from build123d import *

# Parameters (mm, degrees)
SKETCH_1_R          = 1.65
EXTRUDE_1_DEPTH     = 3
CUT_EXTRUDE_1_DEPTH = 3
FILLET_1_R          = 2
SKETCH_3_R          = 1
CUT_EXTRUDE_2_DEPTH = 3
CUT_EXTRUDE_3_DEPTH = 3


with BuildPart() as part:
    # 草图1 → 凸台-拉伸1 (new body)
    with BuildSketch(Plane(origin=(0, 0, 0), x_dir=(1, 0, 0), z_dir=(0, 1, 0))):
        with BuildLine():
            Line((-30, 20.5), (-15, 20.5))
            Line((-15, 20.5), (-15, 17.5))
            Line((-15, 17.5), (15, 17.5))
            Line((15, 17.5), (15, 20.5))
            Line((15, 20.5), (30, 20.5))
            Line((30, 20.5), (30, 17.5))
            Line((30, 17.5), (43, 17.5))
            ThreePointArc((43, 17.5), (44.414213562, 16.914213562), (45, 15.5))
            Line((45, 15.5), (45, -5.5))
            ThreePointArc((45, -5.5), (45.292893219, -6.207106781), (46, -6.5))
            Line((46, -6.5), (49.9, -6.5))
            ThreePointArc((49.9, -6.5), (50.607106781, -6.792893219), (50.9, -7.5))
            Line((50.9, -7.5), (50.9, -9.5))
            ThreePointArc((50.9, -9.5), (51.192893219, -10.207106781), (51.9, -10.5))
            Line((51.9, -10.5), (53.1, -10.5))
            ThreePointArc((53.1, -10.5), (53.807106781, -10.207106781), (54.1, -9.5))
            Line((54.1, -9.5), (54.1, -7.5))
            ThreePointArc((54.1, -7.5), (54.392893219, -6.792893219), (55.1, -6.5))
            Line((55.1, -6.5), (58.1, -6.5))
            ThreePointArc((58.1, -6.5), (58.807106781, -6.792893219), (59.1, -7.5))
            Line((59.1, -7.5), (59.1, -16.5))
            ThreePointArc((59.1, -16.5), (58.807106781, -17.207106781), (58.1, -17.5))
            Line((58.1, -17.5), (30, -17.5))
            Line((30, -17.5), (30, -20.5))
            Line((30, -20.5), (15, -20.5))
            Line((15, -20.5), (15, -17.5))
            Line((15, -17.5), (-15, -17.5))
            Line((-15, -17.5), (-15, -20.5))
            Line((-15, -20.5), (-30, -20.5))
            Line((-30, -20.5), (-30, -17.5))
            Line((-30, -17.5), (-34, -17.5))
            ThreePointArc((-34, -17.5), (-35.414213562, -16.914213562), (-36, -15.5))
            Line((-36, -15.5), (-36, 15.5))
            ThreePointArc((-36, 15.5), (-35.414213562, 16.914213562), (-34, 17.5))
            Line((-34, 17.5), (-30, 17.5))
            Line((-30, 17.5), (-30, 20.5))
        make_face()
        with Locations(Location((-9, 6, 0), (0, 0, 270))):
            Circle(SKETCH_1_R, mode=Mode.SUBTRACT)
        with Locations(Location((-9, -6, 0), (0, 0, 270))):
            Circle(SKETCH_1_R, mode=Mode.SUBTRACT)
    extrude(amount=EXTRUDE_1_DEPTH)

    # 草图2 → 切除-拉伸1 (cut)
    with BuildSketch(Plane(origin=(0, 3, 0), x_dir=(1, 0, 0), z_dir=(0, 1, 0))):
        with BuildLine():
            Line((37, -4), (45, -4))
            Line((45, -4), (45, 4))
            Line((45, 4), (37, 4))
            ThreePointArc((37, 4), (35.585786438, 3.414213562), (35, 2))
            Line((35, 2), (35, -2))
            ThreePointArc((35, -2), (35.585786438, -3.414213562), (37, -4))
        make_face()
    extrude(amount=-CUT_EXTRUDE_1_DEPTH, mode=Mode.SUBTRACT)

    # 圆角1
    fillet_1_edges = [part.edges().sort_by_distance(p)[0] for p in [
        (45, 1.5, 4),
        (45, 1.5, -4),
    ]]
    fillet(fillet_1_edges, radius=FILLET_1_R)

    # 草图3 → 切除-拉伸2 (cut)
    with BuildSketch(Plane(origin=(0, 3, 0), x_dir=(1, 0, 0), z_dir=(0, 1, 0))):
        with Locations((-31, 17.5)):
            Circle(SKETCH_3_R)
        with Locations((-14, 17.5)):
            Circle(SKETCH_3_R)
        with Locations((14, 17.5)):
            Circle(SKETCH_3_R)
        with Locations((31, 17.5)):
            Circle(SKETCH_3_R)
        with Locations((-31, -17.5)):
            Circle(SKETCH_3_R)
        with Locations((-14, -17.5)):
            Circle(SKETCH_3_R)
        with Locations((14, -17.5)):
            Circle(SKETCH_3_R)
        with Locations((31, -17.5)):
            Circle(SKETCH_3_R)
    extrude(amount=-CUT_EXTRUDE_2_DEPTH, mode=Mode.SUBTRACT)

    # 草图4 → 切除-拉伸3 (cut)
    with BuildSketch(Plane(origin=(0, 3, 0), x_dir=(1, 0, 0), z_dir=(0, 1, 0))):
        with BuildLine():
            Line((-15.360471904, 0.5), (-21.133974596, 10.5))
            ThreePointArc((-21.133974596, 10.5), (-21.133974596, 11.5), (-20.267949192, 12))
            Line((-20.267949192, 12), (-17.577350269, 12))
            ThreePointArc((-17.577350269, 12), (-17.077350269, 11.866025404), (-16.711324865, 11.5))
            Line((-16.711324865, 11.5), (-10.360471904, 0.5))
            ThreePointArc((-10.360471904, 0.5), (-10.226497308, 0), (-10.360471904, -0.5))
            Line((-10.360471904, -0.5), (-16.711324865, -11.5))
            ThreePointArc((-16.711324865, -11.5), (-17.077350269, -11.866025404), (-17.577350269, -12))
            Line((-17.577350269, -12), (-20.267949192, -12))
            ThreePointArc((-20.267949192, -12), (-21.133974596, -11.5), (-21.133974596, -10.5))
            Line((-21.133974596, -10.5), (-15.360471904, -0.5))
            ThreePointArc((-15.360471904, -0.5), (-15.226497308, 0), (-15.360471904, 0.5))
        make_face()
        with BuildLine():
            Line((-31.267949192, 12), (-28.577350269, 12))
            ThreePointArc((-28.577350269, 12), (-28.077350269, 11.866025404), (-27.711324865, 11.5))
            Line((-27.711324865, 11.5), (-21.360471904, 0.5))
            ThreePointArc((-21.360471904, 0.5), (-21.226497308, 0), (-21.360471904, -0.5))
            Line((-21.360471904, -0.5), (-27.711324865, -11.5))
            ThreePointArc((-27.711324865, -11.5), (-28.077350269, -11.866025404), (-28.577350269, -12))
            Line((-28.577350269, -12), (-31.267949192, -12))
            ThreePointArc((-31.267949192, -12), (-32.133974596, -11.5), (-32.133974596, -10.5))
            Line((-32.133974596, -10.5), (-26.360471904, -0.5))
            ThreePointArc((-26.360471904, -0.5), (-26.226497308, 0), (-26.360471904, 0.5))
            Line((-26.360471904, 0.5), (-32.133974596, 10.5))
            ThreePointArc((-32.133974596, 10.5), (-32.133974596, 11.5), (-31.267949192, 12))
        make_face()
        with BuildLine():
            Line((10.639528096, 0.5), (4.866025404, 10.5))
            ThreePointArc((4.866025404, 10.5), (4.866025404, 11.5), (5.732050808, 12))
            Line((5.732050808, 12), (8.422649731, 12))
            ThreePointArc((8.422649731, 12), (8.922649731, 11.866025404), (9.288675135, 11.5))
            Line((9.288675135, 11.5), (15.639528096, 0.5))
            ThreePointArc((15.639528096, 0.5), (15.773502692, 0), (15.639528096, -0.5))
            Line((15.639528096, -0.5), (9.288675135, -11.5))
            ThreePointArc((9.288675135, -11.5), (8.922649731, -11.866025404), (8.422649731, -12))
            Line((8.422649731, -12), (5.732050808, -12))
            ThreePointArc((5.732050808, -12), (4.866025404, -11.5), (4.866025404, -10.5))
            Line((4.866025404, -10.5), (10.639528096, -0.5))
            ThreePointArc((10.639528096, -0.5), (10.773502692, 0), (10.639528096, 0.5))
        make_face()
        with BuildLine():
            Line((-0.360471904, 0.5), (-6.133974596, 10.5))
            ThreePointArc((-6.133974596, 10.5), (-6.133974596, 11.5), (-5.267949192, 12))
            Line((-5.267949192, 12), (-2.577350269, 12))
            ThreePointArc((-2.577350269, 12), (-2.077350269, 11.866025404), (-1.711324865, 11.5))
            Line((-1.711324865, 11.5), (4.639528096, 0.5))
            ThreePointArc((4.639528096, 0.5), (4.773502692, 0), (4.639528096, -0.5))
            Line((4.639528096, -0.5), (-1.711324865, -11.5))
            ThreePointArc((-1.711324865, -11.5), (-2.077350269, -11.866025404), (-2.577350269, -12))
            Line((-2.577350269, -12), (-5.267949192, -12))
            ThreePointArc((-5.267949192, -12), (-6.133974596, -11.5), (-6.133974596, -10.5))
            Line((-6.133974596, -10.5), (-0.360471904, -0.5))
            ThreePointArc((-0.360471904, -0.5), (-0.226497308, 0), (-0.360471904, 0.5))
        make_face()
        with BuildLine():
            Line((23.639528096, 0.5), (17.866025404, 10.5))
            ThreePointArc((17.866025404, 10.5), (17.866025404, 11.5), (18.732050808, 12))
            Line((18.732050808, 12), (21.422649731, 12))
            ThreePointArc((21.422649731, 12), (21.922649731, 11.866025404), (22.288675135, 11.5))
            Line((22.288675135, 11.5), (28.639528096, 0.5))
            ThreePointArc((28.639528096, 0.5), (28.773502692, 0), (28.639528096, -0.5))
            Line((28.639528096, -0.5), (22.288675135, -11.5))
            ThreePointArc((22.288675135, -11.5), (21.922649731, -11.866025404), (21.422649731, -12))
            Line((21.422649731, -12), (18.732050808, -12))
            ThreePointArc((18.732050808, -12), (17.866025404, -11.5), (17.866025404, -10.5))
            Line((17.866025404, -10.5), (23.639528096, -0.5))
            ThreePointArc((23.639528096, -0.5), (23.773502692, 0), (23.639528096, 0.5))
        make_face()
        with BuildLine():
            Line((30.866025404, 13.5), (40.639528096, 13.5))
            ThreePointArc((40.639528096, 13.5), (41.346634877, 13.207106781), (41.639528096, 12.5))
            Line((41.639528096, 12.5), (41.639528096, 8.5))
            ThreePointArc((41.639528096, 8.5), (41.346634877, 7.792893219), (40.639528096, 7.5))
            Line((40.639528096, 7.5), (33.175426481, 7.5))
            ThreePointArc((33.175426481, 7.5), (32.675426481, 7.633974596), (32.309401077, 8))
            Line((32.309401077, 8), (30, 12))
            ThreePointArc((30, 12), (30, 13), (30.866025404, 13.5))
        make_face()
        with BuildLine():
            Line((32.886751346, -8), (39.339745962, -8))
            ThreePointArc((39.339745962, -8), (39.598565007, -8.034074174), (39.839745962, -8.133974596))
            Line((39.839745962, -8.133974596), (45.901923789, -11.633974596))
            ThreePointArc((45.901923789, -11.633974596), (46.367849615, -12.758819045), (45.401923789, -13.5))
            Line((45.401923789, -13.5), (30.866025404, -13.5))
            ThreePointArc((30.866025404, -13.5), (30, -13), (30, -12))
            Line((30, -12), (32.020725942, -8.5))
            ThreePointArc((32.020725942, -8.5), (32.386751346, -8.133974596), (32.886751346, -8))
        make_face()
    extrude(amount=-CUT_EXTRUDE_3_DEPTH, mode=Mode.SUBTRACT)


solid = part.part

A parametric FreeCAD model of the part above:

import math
import FreeCAD as App
import Part
import Sketcher
from FreeCAD import Vector
Q = App.Units.Quantity


def edges_at(feature, points):
    """Names of the edges that pass closest to the given points."""
    edges = feature.Shape.Edges
    near = lambda p: min(range(len(edges)), key=lambda i: edges[i].distToShape(Part.Vertex(*p))[0])
    return sorted({f"Edge{near(p) + 1}" for p in points})

doc = App.newDocument("Part")
body = doc.addObject("PartDesign::Body", "Body")

sketch1 = body.newObject("Sketcher::SketchObject", "Sketch")
sketch1.AttachmentSupport = (doc.getObject("XZ_Plane"), [""])
sketch1.MapMode = "FlatFace"
sketch1.addGeometry([
    Part.LineSegment(Vector(-15, -20.5, 0), Vector(-30, -20.5, 0)),
    Part.LineSegment(Vector(-30, -20.5, 0), Vector(-30, -17.5, 0)),
    Part.LineSegment(Vector(-30, -17.5, 0), Vector(-34, -17.5, 0)),
    Part.ArcOfCircle(Part.Circle(Vector(-34, -15.5, 0), Vector(0, 0, 1), 2), math.radians(-180), math.radians(-90)),
    Part.LineSegment(Vector(-36, -15.5, 0), Vector(-36, 15.5, 0)),
    Part.ArcOfCircle(Part.Circle(Vector(-34, 15.5, 0), Vector(0, 0, 1), 2), math.radians(90), math.radians(180)),
    Part.LineSegment(Vector(-34, 17.5, 0), Vector(-30, 17.5, 0)),
    Part.LineSegment(Vector(-30, 17.5, 0), Vector(-30, 20.5, 0)),
    Part.LineSegment(Vector(-30, 20.5, 0), Vector(-15, 20.5, 0)),
    Part.LineSegment(Vector(-15, 20.5, 0), Vector(-15, 17.5, 0)),
    Part.LineSegment(Vector(-15, 17.5, 0), Vector(15, 17.5, 0)),
    Part.LineSegment(Vector(15, 17.5, 0), Vector(15, 20.5, 0)),
    Part.LineSegment(Vector(15, 20.5, 0), Vector(30, 20.5, 0)),
    Part.LineSegment(Vector(30, 20.5, 0), Vector(30, 17.5, 0)),
    Part.LineSegment(Vector(30, 17.5, 0), Vector(58.1, 17.5, 0)),
    Part.ArcOfCircle(Part.Circle(Vector(58.1, 16.5, 0), Vector(0, 0, 1), 1), math.radians(0), math.radians(90)),
    Part.LineSegment(Vector(59.1, 16.5, 0), Vector(59.1, 7.5, 0)),
    Part.ArcOfCircle(Part.Circle(Vector(58.1, 7.5, 0), Vector(0, 0, 1), 1), math.radians(-90), math.radians(0)),
    Part.LineSegment(Vector(58.1, 6.5, 0), Vector(55.1, 6.5, 0)),
    Part.ArcOfCircle(Part.Circle(Vector(55.1, 7.5, 0), Vector(0, 0, 1), 1), math.radians(-180), math.radians(-90)),
    Part.LineSegment(Vector(54.1, 7.5, 0), Vector(54.1, 9.5, 0)),
    Part.ArcOfCircle(Part.Circle(Vector(53.1, 9.5, 0), Vector(0, 0, 1), 1), math.radians(0), math.radians(90)),
    Part.LineSegment(Vector(53.1, 10.5, 0), Vector(51.9, 10.5, 0)),
    Part.ArcOfCircle(Part.Circle(Vector(51.9, 9.5, 0), Vector(0, 0, 1), 1), math.radians(90), math.radians(180)),
    Part.LineSegment(Vector(50.9, 9.5, 0), Vector(50.9, 7.5, 0)),
    Part.ArcOfCircle(Part.Circle(Vector(49.9, 7.5, 0), Vector(0, 0, 1), 1), math.radians(-90), math.radians(0)),
    Part.LineSegment(Vector(49.9, 6.5, 0), Vector(46, 6.5, 0)),
    Part.ArcOfCircle(Part.Circle(Vector(46, 5.5, 0), Vector(0, 0, 1), 1), math.radians(90), math.radians(180)),
    Part.LineSegment(Vector(45, 5.5, 0), Vector(45, -15.5, 0)),
    Part.ArcOfCircle(Part.Circle(Vector(43, -15.5, 0), Vector(0, 0, 1), 2), math.radians(-90), math.radians(0)),
    Part.LineSegment(Vector(43, -17.5, 0), Vector(30, -17.5, 0)),
    Part.LineSegment(Vector(30, -17.5, 0), Vector(30, -20.5, 0)),
    Part.LineSegment(Vector(30, -20.5, 0), Vector(15, -20.5, 0)),
    Part.LineSegment(Vector(15, -20.5, 0), Vector(15, -17.5, 0)),
    Part.LineSegment(Vector(15, -17.5, 0), Vector(-15, -17.5, 0)),
    Part.LineSegment(Vector(-15, -17.5, 0), Vector(-15, -20.5, 0)),
    Part.Circle(Vector(-9, 6, 0), Vector(0, 0, 1), 1.65),
    Part.Circle(Vector(-9, -6, 0), Vector(0, 0, 1), 1.65),
], False)
sketch1.addConstraint([
    Sketcher.Constraint("Coincident", 0, 2, 1, 1),
    Sketcher.Constraint("Coincident", 1, 2, 2, 1),
    Sketcher.Constraint("Tangent", 2, 2, 3, 2),
    Sketcher.Constraint("Tangent", 3, 1, 4, 1),
    Sketcher.Constraint("Tangent", 4, 2, 5, 2),
    Sketcher.Constraint("Tangent", 5, 1, 6, 1),
    Sketcher.Constraint("Coincident", 6, 2, 7, 1),
    Sketcher.Constraint("Coincident", 7, 2, 8, 1),
    Sketcher.Constraint("Coincident", 8, 2, 9, 1),
    Sketcher.Constraint("Coincident", 9, 2, 10, 1),
    Sketcher.Constraint("Coincident", 10, 2, 11, 1),
    Sketcher.Constraint("Coincident", 11, 2, 12, 1),
    Sketcher.Constraint("Coincident", 12, 2, 13, 1),
    Sketcher.Constraint("Coincident", 13, 2, 14, 1),
    Sketcher.Constraint("Tangent", 14, 2, 15, 2),
    Sketcher.Constraint("Tangent", 15, 1, 16, 1),
    Sketcher.Constraint("Tangent", 16, 2, 17, 2),
    Sketcher.Constraint("Tangent", 17, 1, 18, 1),
    Sketcher.Constraint("Tangent", 18, 2, 19, 2),
    Sketcher.Constraint("Tangent", 19, 1, 20, 1),
    Sketcher.Constraint("Tangent", 20, 2, 21, 1),
    Sketcher.Constraint("Tangent", 21, 2, 22, 1),
    Sketcher.Constraint("Tangent", 22, 2, 23, 1),
    Sketcher.Constraint("Tangent", 23, 2, 24, 1),
    Sketcher.Constraint("Tangent", 24, 2, 25, 2),
    Sketcher.Constraint("Tangent", 25, 1, 26, 1),
    Sketcher.Constraint("Tangent", 26, 2, 27, 1),
    Sketcher.Constraint("Tangent", 27, 2, 28, 1),
    Sketcher.Constraint("Tangent", 28, 2, 29, 2),
    Sketcher.Constraint("Tangent", 29, 1, 30, 1),
    Sketcher.Constraint("Coincident", 30, 2, 31, 1),
    Sketcher.Constraint("Coincident", 31, 2, 32, 1),
    Sketcher.Constraint("Coincident", 32, 2, 33, 1),
    Sketcher.Constraint("Coincident", 33, 2, 34, 1),
    Sketcher.Constraint("Coincident", 34, 2, 35, 1),
    Sketcher.Constraint("Coincident", 35, 2, 0, 1),
    Sketcher.Constraint("Horizontal", 0),
    Sketcher.Constraint("Vertical", 1),
    Sketcher.Constraint("Horizontal", 2),
    Sketcher.Constraint("Vertical", 4),
    Sketcher.Constraint("Horizontal", 6),
    Sketcher.Constraint("Vertical", 7),
    Sketcher.Constraint("Horizontal", 8),
    Sketcher.Constraint("Vertical", 9),
    Sketcher.Constraint("Horizontal", 10),
    Sketcher.Constraint("Vertical", 11),
    Sketcher.Constraint("Horizontal", 12),
    Sketcher.Constraint("Vertical", 13),
    Sketcher.Constraint("Horizontal", 14),
    Sketcher.Constraint("Vertical", 16),
    Sketcher.Constraint("Horizontal", 18),
    Sketcher.Constraint("Vertical", 20),
    Sketcher.Constraint("Horizontal", 22),
    Sketcher.Constraint("Vertical", 24),
    Sketcher.Constraint("Horizontal", 26),
    Sketcher.Constraint("Vertical", 28),
    Sketcher.Constraint("Horizontal", 30),
    Sketcher.Constraint("Vertical", 31),
    Sketcher.Constraint("Horizontal", 32),
    Sketcher.Constraint("Vertical", 33),
    Sketcher.Constraint("Horizontal", 34),
    Sketcher.Constraint("Vertical", 35),
    Sketcher.Constraint("Equal", 3, 5),
    Sketcher.Constraint("Equal", 15, 17),
    Sketcher.Constraint("Equal", 17, 19),
    Sketcher.Constraint("Equal", 19, 21),
    Sketcher.Constraint("Equal", 21, 23),
    Sketcher.Constraint("Equal", 23, 25),
    Sketcher.Constraint("Equal", 25, 27),
    Sketcher.Constraint("Equal", 5, 29),
    Sketcher.Constraint("Equal", 36, 37),
    Sketcher.Constraint("Symmetric", 0, 2, 12, 2, -1, 1),
    Sketcher.Constraint("Symmetric", 6, 2, 30, 2, -1, 1),
    Sketcher.Constraint("Symmetric", 8, 2, 32, 2, -1, 1),
    Sketcher.Constraint("Symmetric", 10, 2, 34, 2, -1, 1),
    Sketcher.Constraint("Symmetric", 8, 2, 11, 2, -2),
    Sketcher.Constraint("Symmetric", 6, 2, 13, 2, -2),
    Sketcher.Constraint("Symmetric", 36, 3, 37, 3, -1),
    Sketcher.Constraint("Horizontal", 19, 3, 25, 3),
    Sketcher.Constraint("Horizontal", 3, 3, 29, 3),
    Sketcher.Constraint("Horizontal", 6, 2, 9, 2),
    Sketcher.Constraint("Equal", 18, 1),
    Sketcher.Constraint("Radius", 3, Q("2 mm")),
    Sketcher.Constraint("Radius", 15, Q("1 mm")),
    Sketcher.Constraint("Diameter", 36, Q("3.3 mm")),
    Sketcher.Constraint("DistanceX", 0, 2, 0, 1, Q("15 mm")),
    Sketcher.Constraint("DistanceX", 2, 2, 2, 1, Q("4 mm")),
    Sketcher.Constraint("DistanceX", 10, 1, 10, 2, Q("30 mm")),
    Sketcher.Constraint("DistanceX", 18, 2, 18, 1, Q("3 mm")),
    Sketcher.Constraint("DistanceX", 30, 2, 30, 1, Q("13 mm")),
    Sketcher.Constraint("DistanceY", 4, 1, 4, 2, Q("31 mm")),
    Sketcher.Constraint("DistanceY", 16, 2, 16, 1, Q("9 mm")),
    Sketcher.Constraint("DistanceY", 20, 1, 20, 2, Q("2 mm")),
    Sketcher.Constraint("DistanceX", 14, 1, 14, 2, Q("28.1 mm")),
    Sketcher.Constraint("DistanceX", 22, 2, 22, 1, Q("1.2 mm")),
    Sketcher.Constraint("DistanceX", 36, 3, -1, 1, Q("9 mm")),
    Sketcher.Constraint("DistanceY", -1, 1, 36, 3, Q("6 mm")),
])
pad1 = body.newObject("PartDesign::Pad", "Pad")
pad1.Profile = sketch1
pad1.Length = 3
pad1.Reversed = True

sketch2 = body.newObject("Sketcher::SketchObject", "Sketch001")
sketch2.AttachmentSupport = (doc.getObject("XZ_Plane"), [""])
sketch2.MapMode = "FlatFace"
sketch2.AttachmentOffset = App.Placement(Vector(0, 0, -3), App.Rotation())
sketch2.addGeometry([
    Part.LineSegment(Vector(37, 4, 0), Vector(45, 4, 0)),
    Part.LineSegment(Vector(45, 4, 0), Vector(45, -4, 0)),
    Part.LineSegment(Vector(45, -4, 0), Vector(37, -4, 0)),
    Part.ArcOfCircle(Part.Circle(Vector(37, -2, 0), Vector(0, 0, 1), 2), math.radians(-180), math.radians(-90)),
    Part.LineSegment(Vector(35, -2, 0), Vector(35, 2, 0)),
    Part.ArcOfCircle(Part.Circle(Vector(37, 2, 0), Vector(0, 0, 1), 2), math.radians(90), math.radians(180)),
], False)
sketch2.addConstraint([
    Sketcher.Constraint("Coincident", 0, 2, 1, 1),
    Sketcher.Constraint("Coincident", 1, 2, 2, 1),
    Sketcher.Constraint("Tangent", 2, 2, 3, 2),
    Sketcher.Constraint("Tangent", 3, 1, 4, 1),
    Sketcher.Constraint("Tangent", 4, 2, 5, 2),
    Sketcher.Constraint("Tangent", 5, 1, 0, 1),
    Sketcher.Constraint("Horizontal", 0),
    Sketcher.Constraint("Vertical", 1),
    Sketcher.Constraint("Horizontal", 2),
    Sketcher.Constraint("Vertical", 4),
    Sketcher.Constraint("Equal", 3, 5),
    Sketcher.Constraint("Equal", 2, 1),
    Sketcher.Constraint("Radius", 3, Q("2 mm")),
    Sketcher.Constraint("DistanceX", 0, 1, 0, 2, Q("8 mm")),
    Sketcher.Constraint("DistanceX", -1, 1, 3, 3, Q("37 mm")),
    Sketcher.Constraint("DistanceY", 3, 3, -1, 1, Q("2 mm")),
])
pocket1 = body.newObject("PartDesign::Pocket", "Pocket")
pocket1.Profile = sketch2
pocket1.Length = 3
pocket1.Reversed = True
doc.recompute()

fillet = body.newObject("PartDesign::Fillet", "Fillet")
fillet.Base = (pocket1, edges_at(pocket1, [(45, 1.5, 4), (45, 1.5, -4)]))
fillet.Radius = 2

sketch3 = body.newObject("Sketcher::SketchObject", "Sketch002")
sketch3.AttachmentSupport = (doc.getObject("XZ_Plane"), [""])
sketch3.MapMode = "FlatFace"
sketch3.AttachmentOffset = App.Placement(Vector(0, 0, -3), App.Rotation())
sketch3.addGeometry([
    Part.Circle(Vector(-31, -17.5, 0), Vector(0, 0, 1), 1),
    Part.Circle(Vector(-14, -17.5, 0), Vector(0, 0, 1), 1),
    Part.Circle(Vector(14, -17.5, 0), Vector(0, 0, 1), 1),
    Part.Circle(Vector(31, -17.5, 0), Vector(0, 0, 1), 1),
    Part.Circle(Vector(-31, 17.5, 0), Vector(0, 0, 1), 1),
    Part.Circle(Vector(-14, 17.5, 0), Vector(0, 0, 1), 1),
    Part.Circle(Vector(14, 17.5, 0), Vector(0, 0, 1), 1),
    Part.Circle(Vector(31, 17.5, 0), Vector(0, 0, 1), 1),
], False)
sketch3.addConstraint([
    Sketcher.Constraint("Equal", 0, 1),
    Sketcher.Constraint("Equal", 1, 2),
    Sketcher.Constraint("Equal", 2, 3),
    Sketcher.Constraint("Equal", 3, 4),
    Sketcher.Constraint("Equal", 4, 5),
    Sketcher.Constraint("Equal", 5, 6),
    Sketcher.Constraint("Equal", 6, 7),
    Sketcher.Constraint("Symmetric", 3, 3, 4, 3, -1, 1),
    Sketcher.Constraint("Symmetric", 2, 3, 5, 3, -1, 1),
    Sketcher.Constraint("Symmetric", 1, 3, 6, 3, -1, 1),
    Sketcher.Constraint("Symmetric", 0, 3, 7, 3, -1, 1),
    Sketcher.Constraint("Symmetric", 1, 3, 2, 3, -2),
    Sketcher.Constraint("Symmetric", 0, 3, 3, 3, -2),
    Sketcher.Constraint("Horizontal", 0, 3, 1, 3),
    Sketcher.Constraint("Diameter", 0, Q("2 mm")),
    Sketcher.Constraint("DistanceX", 0, 3, -1, 1, Q("31 mm")),
    Sketcher.Constraint("DistanceX", 1, 3, -1, 1, Q("14 mm")),
    Sketcher.Constraint("DistanceY", 0, 3, 4, 3, Q("35 mm")),
])
pocket2 = body.newObject("PartDesign::Pocket", "Pocket001")
pocket2.Profile = sketch3
pocket2.Length = 3
pocket2.Reversed = True

sketch4 = body.newObject("Sketcher::SketchObject", "Sketch003")
sketch4.AttachmentSupport = (doc.getObject("XZ_Plane"), [""])
sketch4.MapMode = "FlatFace"
sketch4.AttachmentOffset = App.Placement(Vector(0, 0, -3), App.Rotation())
sketch4.addGeometry([
    Part.LineSegment(Vector(-21.133975, -10.5, 0), Vector(-15.360472, -0.5, 0)),
    Part.ArcOfCircle(Part.Circle(Vector(-16.226497, 0, 0), Vector(0, 0, 1), 1), math.radians(-30), math.radians(30)),
    Part.LineSegment(Vector(-15.360472, 0.5, 0), Vector(-21.133975, 10.5, 0)),
    Part.ArcOfCircle(Part.Circle(Vector(-20.267949, 11, 0), Vector(0, 0, 1), 1), math.radians(90), math.radians(210)),
    Part.LineSegment(Vector(-20.267949, 12, 0), Vector(-17.57735, 12, 0)),
    Part.ArcOfCircle(Part.Circle(Vector(-17.57735, 11, 0), Vector(0, 0, 1), 1), math.radians(30), math.radians(90)),
    Part.LineSegment(Vector(-16.711325, 11.5, 0), Vector(-10.360472, 0.5, 0)),
    Part.ArcOfCircle(Part.Circle(Vector(-11.226497, 0, 0), Vector(0, 0, 1), 1), math.radians(-30), math.radians(30)),
    Part.LineSegment(Vector(-10.360472, -0.5, 0), Vector(-16.711325, -11.5, 0)),
    Part.ArcOfCircle(Part.Circle(Vector(-17.57735, -11, 0), Vector(0, 0, 1), 1), math.radians(-90), math.radians(-30)),
    Part.LineSegment(Vector(-17.57735, -12, 0), Vector(-20.267949, -12, 0)),
    Part.ArcOfCircle(Part.Circle(Vector(-20.267949, -11, 0), Vector(0, 0, 1), 1), math.radians(150), math.radians(270)),
    Part.LineSegment(Vector(-28.57735, -12, 0), Vector(-31.267949, -12, 0)),
    Part.ArcOfCircle(Part.Circle(Vector(-31.267949, -11, 0), Vector(0, 0, 1), 1), math.radians(150), math.radians(270)),
    Part.LineSegment(Vector(-32.133975, -10.5, 0), Vector(-26.360472, -0.5, 0)),
    Part.ArcOfCircle(Part.Circle(Vector(-27.226497, 0, 0), Vector(0, 0, 1), 1), math.radians(-30), math.radians(30)),
    Part.LineSegment(Vector(-26.360472, 0.5, 0), Vector(-32.133975, 10.5, 0)),
    Part.ArcOfCircle(Part.Circle(Vector(-31.267949, 11, 0), Vector(0, 0, 1), 1), math.radians(90), math.radians(210)),
    Part.LineSegment(Vector(-31.267949, 12, 0), Vector(-28.57735, 12, 0)),
    Part.ArcOfCircle(Part.Circle(Vector(-28.57735, 11, 0), Vector(0, 0, 1), 1), math.radians(30), math.radians(90)),
    Part.LineSegment(Vector(-27.711325, 11.5, 0), Vector(-21.360472, 0.5, 0)),
    Part.ArcOfCircle(Part.Circle(Vector(-22.226497, 0, 0), Vector(0, 0, 1), 1), math.radians(-30), math.radians(30)),
    Part.LineSegment(Vector(-21.360472, -0.5, 0), Vector(-27.711325, -11.5, 0)),
    Part.ArcOfCircle(Part.Circle(Vector(-28.57735, -11, 0), Vector(0, 0, 1), 1), math.radians(-90), math.radians(-30)),
    Part.LineSegment(Vector(4.866025, -10.5, 0), Vector(10.639528, -0.5, 0)),
    Part.ArcOfCircle(Part.Circle(Vector(9.773503, 0, 0), Vector(0, 0, 1), 1), math.radians(-30), math.radians(30)),
    Part.LineSegment(Vector(10.639528, 0.5, 0), Vector(4.866025, 10.5, 0)),
    Part.ArcOfCircle(Part.Circle(Vector(5.732051, 11, 0), Vector(0, 0, 1), 1), math.radians(90), math.radians(210)),
    Part.LineSegment(Vector(5.732051, 12, 0), Vector(8.42265, 12, 0)),
    Part.ArcOfCircle(Part.Circle(Vector(8.42265, 11, 0), Vector(0, 0, 1), 1), math.radians(30), math.radians(90)),
    Part.LineSegment(Vector(9.288675, 11.5, 0), Vector(15.639528, 0.5, 0)),
    Part.ArcOfCircle(Part.Circle(Vector(14.773503, 0, 0), Vector(0, 0, 1), 1), math.radians(-30), math.radians(30)),
    Part.LineSegment(Vector(15.639528, -0.5, 0), Vector(9.288675, -11.5, 0)),
    Part.ArcOfCircle(Part.Circle(Vector(8.42265, -11, 0), Vector(0, 0, 1), 1), math.radians(-90), math.radians(-30)),
    Part.LineSegment(Vector(8.42265, -12, 0), Vector(5.732051, -12, 0)),
    Part.ArcOfCircle(Part.Circle(Vector(5.732051, -11, 0), Vector(0, 0, 1), 1), math.radians(150), math.radians(270)),
    Part.LineSegment(Vector(-6.133975, -10.5, 0), Vector(-0.360472, -0.5, 0)),
    Part.ArcOfCircle(Part.Circle(Vector(-1.226497, 0, 0), Vector(0, 0, 1), 1), math.radians(-30), math.radians(30)),
    Part.LineSegment(Vector(-0.360472, 0.5, 0), Vector(-6.133975, 10.5, 0)),
    Part.ArcOfCircle(Part.Circle(Vector(-5.267949, 11, 0), Vector(0, 0, 1), 1), math.radians(90), math.radians(210)),
    Part.LineSegment(Vector(-5.267949, 12, 0), Vector(-2.57735, 12, 0)),
    Part.ArcOfCircle(Part.Circle(Vector(-2.57735, 11, 0), Vector(0, 0, 1), 1), math.radians(30), math.radians(90)),
    Part.LineSegment(Vector(-1.711325, 11.5, 0), Vector(4.639528, 0.5, 0)),
    Part.ArcOfCircle(Part.Circle(Vector(3.773503, 0, 0), Vector(0, 0, 1), 1), math.radians(-30), math.radians(30)),
    Part.LineSegment(Vector(4.639528, -0.5, 0), Vector(-1.711325, -11.5, 0)),
    Part.ArcOfCircle(Part.Circle(Vector(-2.57735, -11, 0), Vector(0, 0, 1), 1), math.radians(-90), math.radians(-30)),
    Part.LineSegment(Vector(-2.57735, -12, 0), Vector(-5.267949, -12, 0)),
    Part.ArcOfCircle(Part.Circle(Vector(-5.267949, -11, 0), Vector(0, 0, 1), 1), math.radians(150), math.radians(270)),
    Part.LineSegment(Vector(17.866025, -10.5, 0), Vector(23.639528, -0.5, 0)),
    Part.ArcOfCircle(Part.Circle(Vector(22.773503, 0, 0), Vector(0, 0, 1), 1), math.radians(-30), math.radians(30)),
    Part.LineSegment(Vector(23.639528, 0.5, 0), Vector(17.866025, 10.5, 0)),
    Part.ArcOfCircle(Part.Circle(Vector(18.732051, 11, 0), Vector(0, 0, 1), 1), math.radians(90), math.radians(210)),
    Part.LineSegment(Vector(18.732051, 12, 0), Vector(21.42265, 12, 0)),
    Part.ArcOfCircle(Part.Circle(Vector(21.42265, 11, 0), Vector(0, 0, 1), 1), math.radians(30), math.radians(90)),
    Part.LineSegment(Vector(22.288675, 11.5, 0), Vector(28.639528, 0.5, 0)),
    Part.ArcOfCircle(Part.Circle(Vector(27.773503, 0, 0), Vector(0, 0, 1), 1), math.radians(-30), math.radians(30)),
    Part.LineSegment(Vector(28.639528, -0.5, 0), Vector(22.288675, -11.5, 0)),
    Part.ArcOfCircle(Part.Circle(Vector(21.42265, -11, 0), Vector(0, 0, 1), 1), math.radians(-90), math.radians(-30)),
    Part.LineSegment(Vector(21.42265, -12, 0), Vector(18.732051, -12, 0)),
    Part.ArcOfCircle(Part.Circle(Vector(18.732051, -11, 0), Vector(0, 0, 1), 1), math.radians(150), math.radians(270)),
    Part.LineSegment(Vector(40.639528, -13.5, 0), Vector(30.866025, -13.5, 0)),
    Part.ArcOfCircle(Part.Circle(Vector(30.866025, -12.5, 0), Vector(0, 0, 1), 1), math.radians(150), math.radians(270)),
    Part.LineSegment(Vector(30, -12, 0), Vector(32.309401, -8, 0)),
    Part.ArcOfCircle(Part.Circle(Vector(33.175426, -8.5, 0), Vector(0, 0, 1), 1), math.radians(90), math.radians(150)),
    Part.LineSegment(Vector(33.175426, -7.5, 0), Vector(40.639528, -7.5, 0)),
    Part.ArcOfCircle(Part.Circle(Vector(40.639528, -8.5, 0), Vector(0, 0, 1), 1), math.radians(0), math.radians(90)),
    Part.LineSegment(Vector(41.639528, -8.5, 0), Vector(41.639528, -12.5, 0)),
    Part.ArcOfCircle(Part.Circle(Vector(40.639528, -12.5, 0), Vector(0, 0, 1), 1), math.radians(-90), math.radians(0)),
    Part.LineSegment(Vector(39.339746, 8, 0), Vector(32.886751, 8, 0)),
    Part.ArcOfCircle(Part.Circle(Vector(32.886751, 9, 0), Vector(0, 0, 1), 1), math.radians(-150), math.radians(-90)),
    Part.LineSegment(Vector(32.020726, 8.5, 0), Vector(30, 12, 0)),
    Part.ArcOfCircle(Part.Circle(Vector(30.866025, 12.5, 0), Vector(0, 0, 1), 1), math.radians(90), math.radians(210)),
    Part.LineSegment(Vector(30.866025, 13.5, 0), Vector(45.401924, 13.5, 0)),
    Part.ArcOfCircle(Part.Circle(Vector(45.401924, 12.5, 0), Vector(0, 0, 1), 1), math.radians(-60), math.radians(90)),
    Part.LineSegment(Vector(45.901924, 11.633975, 0), Vector(39.839746, 8.133975, 0)),
    Part.ArcOfCircle(Part.Circle(Vector(39.339746, 9, 0), Vector(0, 0, 1), 1), math.radians(-90), math.radians(-60)),
], False)
sketch4.addConstraint([
    Sketcher.Constraint("Tangent", 0, 2, 1, 1),
    Sketcher.Constraint("Tangent", 1, 2, 2, 1),
    Sketcher.Constraint("Tangent", 2, 2, 3, 2),
    Sketcher.Constraint("Tangent", 3, 1, 4, 1),
    Sketcher.Constraint("Tangent", 4, 2, 5, 2),
    Sketcher.Constraint("Tangent", 5, 1, 6, 1),
    Sketcher.Constraint("Tangent", 6, 2, 7, 2),
    Sketcher.Constraint("Tangent", 7, 1, 8, 1),
    Sketcher.Constraint("Tangent", 8, 2, 9, 2),
    Sketcher.Constraint("Tangent", 9, 1, 10, 1),
    Sketcher.Constraint("Tangent", 10, 2, 11, 2),
    Sketcher.Constraint("Tangent", 11, 1, 0, 1),
    Sketcher.Constraint("Tangent", 12, 2, 13, 2),
    Sketcher.Constraint("Tangent", 13, 1, 14, 1),
    Sketcher.Constraint("Tangent", 14, 2, 15, 1),
    Sketcher.Constraint("Tangent", 15, 2, 16, 1),
    Sketcher.Constraint("Tangent", 16, 2, 17, 2),
    Sketcher.Constraint("Tangent", 17, 1, 18, 1),
    Sketcher.Constraint("Tangent", 18, 2, 19, 2),
    Sketcher.Constraint("Tangent", 19, 1, 20, 1),
    Sketcher.Constraint("Tangent", 20, 2, 21, 2),
    Sketcher.Constraint("Tangent", 21, 1, 22, 1),
    Sketcher.Constraint("Tangent", 22, 2, 23, 2),
    Sketcher.Constraint("Tangent", 23, 1, 12, 1),
    Sketcher.Constraint("Tangent", 24, 2, 25, 1),
    Sketcher.Constraint("Tangent", 25, 2, 26, 1),
    Sketcher.Constraint("Tangent", 26, 2, 27, 2),
    Sketcher.Constraint("Tangent", 27, 1, 28, 1),
    Sketcher.Constraint("Tangent", 28, 2, 29, 2),
    Sketcher.Constraint("Tangent", 29, 1, 30, 1),
    Sketcher.Constraint("Tangent", 30, 2, 31, 2),
    Sketcher.Constraint("Tangent", 31, 1, 32, 1),
    Sketcher.Constraint("Tangent", 32, 2, 33, 2),
    Sketcher.Constraint("Tangent", 33, 1, 34, 1),
    Sketcher.Constraint("Tangent", 34, 2, 35, 2),
    Sketcher.Constraint("Tangent", 35, 1, 24, 1),
    Sketcher.Constraint("Tangent", 36, 2, 37, 1),
    Sketcher.Constraint("Tangent", 37, 2, 38, 1),
    Sketcher.Constraint("Tangent", 38, 2, 39, 2),
    Sketcher.Constraint("Tangent", 39, 1, 40, 1),
    Sketcher.Constraint("Tangent", 40, 2, 41, 2),
    Sketcher.Constraint("Tangent", 41, 1, 42, 1),
    Sketcher.Constraint("Tangent", 42, 2, 43, 2),
    Sketcher.Constraint("Tangent", 43, 1, 44, 1),
    Sketcher.Constraint("Tangent", 44, 2, 45, 2),
    Sketcher.Constraint("Tangent", 45, 1, 46, 1),
    Sketcher.Constraint("Tangent", 46, 2, 47, 2),
    Sketcher.Constraint("Tangent", 47, 1, 36, 1),
    Sketcher.Constraint("Tangent", 48, 2, 49, 1),
    Sketcher.Constraint("Tangent", 49, 2, 50, 1),
    Sketcher.Constraint("Tangent", 50, 2, 51, 2),
    Sketcher.Constraint("Tangent", 51, 1, 52, 1),
    Sketcher.Constraint("Tangent", 52, 2, 53, 2),
    Sketcher.Constraint("Tangent", 53, 1, 54, 1),
    Sketcher.Constraint("Tangent", 54, 2, 55, 2),
    Sketcher.Constraint("Tangent", 55, 1, 56, 1),
    Sketcher.Constraint("Tangent", 56, 2, 57, 2),
    Sketcher.Constraint("Tangent", 57, 1, 58, 1),
    Sketcher.Constraint("Tangent", 58, 2, 59, 2),
    Sketcher.Constraint("Tangent", 59, 1, 48, 1),
    Sketcher.Constraint("Tangent", 60, 2, 61, 2),
    Sketcher.Constraint("Tangent", 61, 1, 62, 1),
    Sketcher.Constraint("Tangent", 62, 2, 63, 2),
    Sketcher.Constraint("Tangent", 63, 1, 64, 1),
    Sketcher.Constraint("Tangent", 64, 2, 65, 2),
    Sketcher.Constraint("Tangent", 65, 1, 66, 1),
    Sketcher.Constraint("Tangent", 66, 2, 67, 2),
    Sketcher.Constraint("Tangent", 67, 1, 60, 1),
    Sketcher.Constraint("Tangent", 68, 2, 69, 2),
    Sketcher.Constraint("Tangent", 69, 1, 70, 1),
    Sketcher.Constraint("Tangent", 70, 2, 71, 2),
    Sketcher.Constraint("Tangent", 71, 1, 72, 1),
    Sketcher.Constraint("Tangent", 72, 2, 73, 2),
    Sketcher.Constraint("Tangent", 73, 1, 74, 1),
    Sketcher.Constraint("Tangent", 74, 2, 75, 2),
    Sketcher.Constraint("Tangent", 75, 1, 68, 1),
    Sketcher.Constraint("Horizontal", 4),
    Sketcher.Constraint("Horizontal", 10),
    Sketcher.Constraint("Horizontal", 12),
    Sketcher.Constraint("Horizontal", 18),
    Sketcher.Constraint("Horizontal", 28),
    Sketcher.Constraint("Horizontal", 34),
    Sketcher.Constraint("Horizontal", 40),
    Sketcher.Constraint("Horizontal", 46),
    Sketcher.Constraint("Horizontal", 52),
    Sketcher.Constraint("Horizontal", 58),
    Sketcher.Constraint("Horizontal", 60),
    Sketcher.Constraint("Horizontal", 64),
    Sketcher.Constraint("Vertical", 66),
    Sketcher.Constraint("Horizontal", 68),
    Sketcher.Constraint("Horizontal", 72),
    Sketcher.Constraint("Equal", 1, 3),
    Sketcher.Constraint("Equal", 3, 5),
    Sketcher.Constraint("Equal", 5, 7),
    Sketcher.Constraint("Equal", 7, 9),
    Sketcher.Constraint("Equal", 9, 11),
    Sketcher.Constraint("Equal", 11, 13),
    Sketcher.Constraint("Equal", 13, 15),
    Sketcher.Constraint("Equal", 15, 17),
    Sketcher.Constraint("Equal", 17, 19),
    Sketcher.Constraint("Equal", 19, 21),
    Sketcher.Constraint("Equal", 21, 23),
    Sketcher.Constraint("Equal", 23, 25),
    Sketcher.Constraint("Equal", 25, 27),
    Sketcher.Constraint("Equal", 27, 29),
    Sketcher.Constraint("Equal", 29, 31),
    Sketcher.Constraint("Equal", 31, 33),
    Sketcher.Constraint("Equal", 33, 35),
    Sketcher.Constraint("Equal", 35, 37),
    Sketcher.Constraint("Equal", 37, 39),
    Sketcher.Constraint("Equal", 39, 41),
    Sketcher.Constraint("Equal", 41, 43),
    Sketcher.Constraint("Equal", 43, 45),
    Sketcher.Constraint("Equal", 45, 47),
    Sketcher.Constraint("Equal", 47, 49),
    Sketcher.Constraint("Equal", 49, 51),
    Sketcher.Constraint("Equal", 51, 53),
    Sketcher.Constraint("Equal", 53, 55),
    Sketcher.Constraint("Equal", 55, 57),
    Sketcher.Constraint("Equal", 57, 59),
    Sketcher.Constraint("Equal", 59, 61),
    Sketcher.Constraint("Equal", 61, 63),
    Sketcher.Constraint("Equal", 63, 65),
    Sketcher.Constraint("Equal", 65, 67),
    Sketcher.Constraint("Equal", 67, 69),
    Sketcher.Constraint("Equal", 69, 71),
    Sketcher.Constraint("Equal", 71, 73),
    Sketcher.Constraint("Equal", 73, 75),
    Sketcher.Constraint("Symmetric", 5, 3, 9, 3, -1),
    Sketcher.Constraint("Symmetric", 13, 3, 17, 3, -1),
    Sketcher.Constraint("Symmetric", 29, 3, 33, 3, -1),
    Sketcher.Constraint("Symmetric", 41, 3, 45, 3, -1),
    Sketcher.Constraint("Symmetric", 53, 3, 57, 3, -1),
    Sketcher.Constraint("Symmetric", 61, 3, 71, 3, -1),
    Sketcher.Constraint("Symmetric", 0, 2, 1, 2, -1),
    Sketcher.Constraint("Symmetric", 20, 2, 21, 1, -1),
    Sketcher.Constraint("Symmetric", 24, 2, 25, 2, -1),
    Sketcher.Constraint("Symmetric", 36, 2, 37, 2, -1),
    Sketcher.Constraint("Symmetric", 48, 2, 49, 2, -1),
    Sketcher.Constraint("PointOnObject", 7, 3, -1),
    Sketcher.Constraint("PointOnObject", 15, 3, -1),
    Sketcher.Constraint("PointOnObject", 31, 3, -1),
    Sketcher.Constraint("PointOnObject", 43, 3, -1),
    Sketcher.Constraint("PointOnObject", 55, 3, -1),
    Sketcher.Constraint("Parallel", 2, 6),
    Sketcher.Constraint("Parallel", 8, 14),
    Sketcher.Constraint("Parallel", 16, 20),
    Sketcher.Constraint("Parallel", 22, 24),
    Sketcher.Constraint("Parallel", 26, 30),
    Sketcher.Constraint("Parallel", 32, 36),
    Sketcher.Constraint("Parallel", 38, 42),
    Sketcher.Constraint("Parallel", 44, 48),
    Sketcher.Constraint("Parallel", 50, 54),
    Sketcher.Constraint("Parallel", 56, 62),
    Sketcher.Constraint("Parallel", 54, 70),
    Sketcher.Constraint("Perpendicular", 70, 74),
    Sketcher.Constraint("Horizontal", 11, 3, 13, 3),
    Sketcher.Constraint("Horizontal", 19, 3, 27, 3),
    Sketcher.Constraint("Horizontal", 29, 3, 39, 3),
    Sketcher.Constraint("Horizontal", 41, 3, 51, 3),
    Sketcher.Constraint("Horizontal", 58, 2, 61, 1),
    Sketcher.Constraint("Equal", 10, 12),
    Sketcher.Constraint("Equal", 18, 28),
    Sketcher.Constraint("Equal", 34, 40),
    Sketcher.Constraint("Equal", 46, 52),
    Sketcher.Constraint("Radius", 1, Q("1 mm")),
    Sketcher.Constraint("DistanceY", 66, 2, 66, 1, Q("4 mm")),
    Sketcher.Constraint("Angle", 0, Q("60 deg")),
    Sketcher.Constraint("Distance", 74, Q("7 mm")),
    Sketcher.Constraint("DistanceY", -1, 1, 3, 3, Q("11 mm")),
    Sketcher.Constraint("DistanceX", -1, 1, 61, 1, Q("30 mm")),
    Sketcher.Constraint("DistanceX", 4, 1, 4, 2, Q("2.690599 mm")),
    Sketcher.Constraint("DistanceX", 64, 1, 64, 2, Q("7.464102 mm")),
    Sketcher.Constraint("DistanceX", 72, 1, 72, 2, Q("14.535898 mm")),
    Sketcher.Constraint("DistanceX", 3, 3, -1, 1, Q("20.267949 mm")),
    Sketcher.Constraint("DistanceX", 13, 3, -1, 1, Q("31.267949 mm")),
    Sketcher.Constraint("DistanceX", -1, 1, 27, 3, Q("5.732051 mm")),
    Sketcher.Constraint("DistanceX", 39, 3, -1, 1, Q("5.267949 mm")),
    Sketcher.Constraint("DistanceX", -1, 1, 51, 3, Q("18.732051 mm")),
])
pocket3 = body.newObject("PartDesign::Pocket", "Pocket002")
pocket3.Profile = sketch4
pocket3.Length = 3
pocket3.Reversed = True

doc.recompute()
